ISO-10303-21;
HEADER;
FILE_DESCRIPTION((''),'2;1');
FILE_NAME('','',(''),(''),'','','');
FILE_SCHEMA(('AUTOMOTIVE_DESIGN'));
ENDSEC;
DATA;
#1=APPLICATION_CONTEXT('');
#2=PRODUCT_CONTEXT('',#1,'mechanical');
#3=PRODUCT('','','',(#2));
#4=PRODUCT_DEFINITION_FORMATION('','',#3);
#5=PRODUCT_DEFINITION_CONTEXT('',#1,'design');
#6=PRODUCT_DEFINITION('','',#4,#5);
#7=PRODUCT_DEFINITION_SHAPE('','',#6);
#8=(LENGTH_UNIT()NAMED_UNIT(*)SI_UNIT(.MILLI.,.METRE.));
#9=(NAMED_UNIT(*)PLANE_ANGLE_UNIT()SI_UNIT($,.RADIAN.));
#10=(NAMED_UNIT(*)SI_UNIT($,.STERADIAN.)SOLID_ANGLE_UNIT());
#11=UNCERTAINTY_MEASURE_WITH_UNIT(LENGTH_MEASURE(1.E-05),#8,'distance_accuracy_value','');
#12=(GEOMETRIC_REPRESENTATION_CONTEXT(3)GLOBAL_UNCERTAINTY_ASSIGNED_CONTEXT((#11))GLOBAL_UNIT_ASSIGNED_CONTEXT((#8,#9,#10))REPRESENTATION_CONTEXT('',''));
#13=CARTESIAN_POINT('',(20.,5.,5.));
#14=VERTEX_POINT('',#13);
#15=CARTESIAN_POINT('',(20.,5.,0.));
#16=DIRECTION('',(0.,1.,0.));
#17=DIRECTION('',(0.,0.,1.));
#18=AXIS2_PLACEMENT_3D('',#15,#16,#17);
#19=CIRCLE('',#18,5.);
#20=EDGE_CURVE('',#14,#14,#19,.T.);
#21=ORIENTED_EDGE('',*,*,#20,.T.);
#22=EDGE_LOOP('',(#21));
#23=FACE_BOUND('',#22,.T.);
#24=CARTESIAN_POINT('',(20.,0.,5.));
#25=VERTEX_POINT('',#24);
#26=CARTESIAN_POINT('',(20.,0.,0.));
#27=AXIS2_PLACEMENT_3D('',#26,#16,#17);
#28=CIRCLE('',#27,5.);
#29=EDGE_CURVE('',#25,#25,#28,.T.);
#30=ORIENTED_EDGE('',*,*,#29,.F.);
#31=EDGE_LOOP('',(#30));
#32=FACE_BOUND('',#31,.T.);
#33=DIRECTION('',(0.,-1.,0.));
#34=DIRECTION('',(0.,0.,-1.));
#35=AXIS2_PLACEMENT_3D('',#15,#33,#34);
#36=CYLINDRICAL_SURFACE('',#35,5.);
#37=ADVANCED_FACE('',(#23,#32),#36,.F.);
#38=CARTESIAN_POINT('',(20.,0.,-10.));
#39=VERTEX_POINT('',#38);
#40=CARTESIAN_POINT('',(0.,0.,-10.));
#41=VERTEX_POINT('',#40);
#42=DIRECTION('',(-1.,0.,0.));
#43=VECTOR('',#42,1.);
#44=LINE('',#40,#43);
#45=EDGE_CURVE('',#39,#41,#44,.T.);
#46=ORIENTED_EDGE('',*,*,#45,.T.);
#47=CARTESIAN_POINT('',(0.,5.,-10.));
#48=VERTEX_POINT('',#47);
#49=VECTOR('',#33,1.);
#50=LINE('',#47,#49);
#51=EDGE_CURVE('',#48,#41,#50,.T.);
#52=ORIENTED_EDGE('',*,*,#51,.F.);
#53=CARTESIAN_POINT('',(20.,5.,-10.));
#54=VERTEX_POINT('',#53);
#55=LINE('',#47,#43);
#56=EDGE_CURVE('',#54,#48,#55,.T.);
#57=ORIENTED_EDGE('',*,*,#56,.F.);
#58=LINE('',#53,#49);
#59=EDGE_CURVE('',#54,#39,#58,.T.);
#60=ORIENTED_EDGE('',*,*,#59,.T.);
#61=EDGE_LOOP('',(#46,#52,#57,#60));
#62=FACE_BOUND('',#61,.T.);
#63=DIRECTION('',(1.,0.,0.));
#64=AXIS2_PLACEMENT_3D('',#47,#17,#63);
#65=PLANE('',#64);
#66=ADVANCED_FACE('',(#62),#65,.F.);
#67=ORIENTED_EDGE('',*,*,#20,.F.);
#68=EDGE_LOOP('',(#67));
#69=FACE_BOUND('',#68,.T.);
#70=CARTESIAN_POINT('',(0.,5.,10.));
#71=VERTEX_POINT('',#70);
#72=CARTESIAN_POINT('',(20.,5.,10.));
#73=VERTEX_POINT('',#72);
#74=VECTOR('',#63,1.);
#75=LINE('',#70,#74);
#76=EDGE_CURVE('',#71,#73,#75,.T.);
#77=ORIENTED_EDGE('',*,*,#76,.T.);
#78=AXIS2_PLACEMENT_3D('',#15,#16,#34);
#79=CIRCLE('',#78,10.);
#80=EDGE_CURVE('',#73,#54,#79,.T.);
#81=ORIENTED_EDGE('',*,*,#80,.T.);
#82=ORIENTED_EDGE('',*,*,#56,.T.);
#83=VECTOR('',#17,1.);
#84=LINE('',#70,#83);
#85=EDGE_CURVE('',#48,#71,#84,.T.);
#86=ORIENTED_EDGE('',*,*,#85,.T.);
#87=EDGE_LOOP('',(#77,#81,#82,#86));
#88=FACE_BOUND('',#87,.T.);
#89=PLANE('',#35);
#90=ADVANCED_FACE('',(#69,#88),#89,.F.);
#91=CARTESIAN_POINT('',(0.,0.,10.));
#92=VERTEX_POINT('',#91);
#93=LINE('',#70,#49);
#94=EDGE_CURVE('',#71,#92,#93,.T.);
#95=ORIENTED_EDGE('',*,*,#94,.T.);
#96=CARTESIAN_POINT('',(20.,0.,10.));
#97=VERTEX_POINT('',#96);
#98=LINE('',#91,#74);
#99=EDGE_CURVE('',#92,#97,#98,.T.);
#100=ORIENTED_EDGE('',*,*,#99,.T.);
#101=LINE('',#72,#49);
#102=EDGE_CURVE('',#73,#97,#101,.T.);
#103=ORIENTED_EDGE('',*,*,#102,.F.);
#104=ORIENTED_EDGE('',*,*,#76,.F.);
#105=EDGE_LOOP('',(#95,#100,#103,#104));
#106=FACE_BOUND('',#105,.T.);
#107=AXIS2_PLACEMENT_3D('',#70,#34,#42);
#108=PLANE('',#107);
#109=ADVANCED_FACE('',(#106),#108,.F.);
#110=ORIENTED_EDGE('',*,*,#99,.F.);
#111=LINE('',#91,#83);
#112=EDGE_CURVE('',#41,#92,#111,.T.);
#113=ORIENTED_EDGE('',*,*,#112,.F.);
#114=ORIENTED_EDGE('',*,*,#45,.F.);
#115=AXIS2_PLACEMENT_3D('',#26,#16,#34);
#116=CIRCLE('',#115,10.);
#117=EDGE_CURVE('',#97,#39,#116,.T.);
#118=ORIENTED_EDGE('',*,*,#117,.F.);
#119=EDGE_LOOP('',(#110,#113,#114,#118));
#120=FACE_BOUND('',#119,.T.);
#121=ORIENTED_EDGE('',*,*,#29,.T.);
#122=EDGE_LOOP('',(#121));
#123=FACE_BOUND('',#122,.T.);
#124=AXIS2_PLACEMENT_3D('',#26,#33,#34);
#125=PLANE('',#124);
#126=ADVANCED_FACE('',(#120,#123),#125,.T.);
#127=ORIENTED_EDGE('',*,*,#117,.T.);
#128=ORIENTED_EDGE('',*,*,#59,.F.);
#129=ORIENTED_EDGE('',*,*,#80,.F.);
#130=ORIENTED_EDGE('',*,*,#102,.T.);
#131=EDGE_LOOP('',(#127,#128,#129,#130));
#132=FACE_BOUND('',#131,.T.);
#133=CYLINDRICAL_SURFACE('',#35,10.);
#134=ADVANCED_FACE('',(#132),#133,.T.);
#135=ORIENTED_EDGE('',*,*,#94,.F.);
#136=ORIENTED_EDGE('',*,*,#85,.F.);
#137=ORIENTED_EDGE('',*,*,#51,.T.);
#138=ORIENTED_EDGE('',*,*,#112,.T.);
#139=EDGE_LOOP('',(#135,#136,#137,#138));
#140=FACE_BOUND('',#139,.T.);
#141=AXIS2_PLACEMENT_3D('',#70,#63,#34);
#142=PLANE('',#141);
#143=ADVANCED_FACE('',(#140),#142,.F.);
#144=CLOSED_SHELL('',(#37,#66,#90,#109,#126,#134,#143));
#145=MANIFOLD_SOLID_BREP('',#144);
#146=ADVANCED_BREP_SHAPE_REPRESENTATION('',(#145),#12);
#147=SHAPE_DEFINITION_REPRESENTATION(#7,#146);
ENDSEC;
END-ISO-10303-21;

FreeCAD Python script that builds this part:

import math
import FreeCAD as App
import Part
import Sketcher

V = App.Vector

doc = App.newDocument("Part")
body = doc.addObject("PartDesign::Body", "Body")

# Sketch on XZ plane
sketch1 = body.newObject("Sketcher::SketchObject", "Sketch")
sketch1.AttachmentSupport = (doc.getObject("XZ_Plane"), [""])
sketch1.MapMode = "FlatFace"
sketch1.addGeometry([
    Part.LineSegment(V(0, -10, 0), V(0, 10, 0)),  # 0
    Part.LineSegment(V(0, 10, 0), V(20, 10, 0)),  # 1
    Part.ArcOfCircle(Part.Circle(V(20, 0, 0), V(0, 0, 1), 10), math.radians(-90), math.radians(90)),  # 2
    Part.LineSegment(V(20, -10, 0), V(0, -10, 0)),  # 3
    Part.Circle(V(20, 0, 0), V(0, 0, 1), 5),  # 4
], False)
sketch1.addConstraint([
    Sketcher.Constraint("Coincident", 0, 2, 1, 1),
    Sketcher.Constraint("Tangent", 1, 2, 2, 2),
    Sketcher.Constraint("Tangent", 2, 1, 3, 1),
    Sketcher.Constraint("Coincident", 3, 2, 0, 1),
    Sketcher.Constraint("Vertical", 0),
    Sketcher.Constraint("Horizontal", 1),
    Sketcher.Constraint("Horizontal", 3),
    Sketcher.Constraint("Coincident", 4, 3, 2, 3),
    Sketcher.Constraint("Symmetric", 0, 2, 3, 2, -1, 1),
    Sketcher.Constraint("Equal", 3, 0),
    Sketcher.Constraint("Diameter", 4, 10.0),
    Sketcher.Constraint("Radius", 2, 10.0),
])
pad1 = body.newObject("PartDesign::Pad", "Pad")
pad1.Profile = sketch1
pad1.Length = 5
pad1.Reversed = True

doc.recompute()
